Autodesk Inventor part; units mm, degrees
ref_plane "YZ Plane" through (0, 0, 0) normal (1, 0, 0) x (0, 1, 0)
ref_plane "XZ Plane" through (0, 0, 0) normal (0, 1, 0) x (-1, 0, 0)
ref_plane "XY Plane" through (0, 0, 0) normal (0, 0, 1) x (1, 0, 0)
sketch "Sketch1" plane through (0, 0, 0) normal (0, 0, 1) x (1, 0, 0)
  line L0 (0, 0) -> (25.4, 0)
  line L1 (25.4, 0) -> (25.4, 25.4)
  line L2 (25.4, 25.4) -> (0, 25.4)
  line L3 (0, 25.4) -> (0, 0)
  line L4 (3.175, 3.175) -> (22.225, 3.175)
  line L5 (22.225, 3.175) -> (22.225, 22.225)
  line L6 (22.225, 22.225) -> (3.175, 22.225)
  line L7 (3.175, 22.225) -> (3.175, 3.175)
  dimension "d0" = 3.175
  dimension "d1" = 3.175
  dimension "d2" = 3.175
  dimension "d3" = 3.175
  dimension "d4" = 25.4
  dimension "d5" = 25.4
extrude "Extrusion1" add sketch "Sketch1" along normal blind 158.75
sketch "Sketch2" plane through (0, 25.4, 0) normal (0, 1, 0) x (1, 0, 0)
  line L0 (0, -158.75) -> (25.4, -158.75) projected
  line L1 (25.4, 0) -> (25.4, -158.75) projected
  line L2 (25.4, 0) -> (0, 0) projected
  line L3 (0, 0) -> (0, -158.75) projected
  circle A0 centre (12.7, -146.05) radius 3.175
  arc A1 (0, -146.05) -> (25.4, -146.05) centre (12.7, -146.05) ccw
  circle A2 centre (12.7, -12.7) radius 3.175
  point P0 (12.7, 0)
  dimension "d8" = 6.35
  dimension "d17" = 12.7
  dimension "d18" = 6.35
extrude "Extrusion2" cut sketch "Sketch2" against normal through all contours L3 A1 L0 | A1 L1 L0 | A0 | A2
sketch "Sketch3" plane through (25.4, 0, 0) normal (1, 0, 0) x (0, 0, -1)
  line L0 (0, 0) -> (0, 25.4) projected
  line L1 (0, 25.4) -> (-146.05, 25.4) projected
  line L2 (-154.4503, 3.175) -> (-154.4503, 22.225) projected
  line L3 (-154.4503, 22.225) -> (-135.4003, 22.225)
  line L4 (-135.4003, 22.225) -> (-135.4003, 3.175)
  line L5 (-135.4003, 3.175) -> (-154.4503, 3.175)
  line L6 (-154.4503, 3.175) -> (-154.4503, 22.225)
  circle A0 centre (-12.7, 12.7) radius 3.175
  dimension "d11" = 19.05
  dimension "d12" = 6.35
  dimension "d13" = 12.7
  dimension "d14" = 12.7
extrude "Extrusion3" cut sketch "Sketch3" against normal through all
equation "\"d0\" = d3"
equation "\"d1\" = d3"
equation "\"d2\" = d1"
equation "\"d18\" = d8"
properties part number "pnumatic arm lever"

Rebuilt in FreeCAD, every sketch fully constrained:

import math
import FreeCAD as App
import Part
import Sketcher
from FreeCAD import Vector
Q = App.Units.Quantity

doc = App.newDocument("Part")
params = doc.addObject("Spreadsheet::Sheet", "Params")
for row, (alias, value) in enumerate([
    ("sketch1_width", "1 in"),
    ("pad1_length", "6.25 in"),
    ("sketch2_radius", "0.5 in"),
    ("sketch2_diameter", "0.25 in"),
    ("sketch3_diameter", "0.25 in"),
    ("sketch3_width", "0.75 in"),
], start=1):
    params.set(f"A{row}", alias)
    params.set(f"B{row}", "=" + value)
    params.setAlias(f"B{row}", alias)

body = doc.addObject("PartDesign::Body", "Body")

# Sketch on XY plane
sketch1 = body.newObject("Sketcher::SketchObject", "Sketch")
sketch1.AttachmentSupport = (doc.getObject("XY_Plane"), [""])
sketch1.MapMode = "FlatFace"
sketch1.addGeometry(Part.LineSegment(Vector(0, 25.4, 0), Vector(0, 0, 0)), False)
sketch1.addGeometry(Part.LineSegment(Vector(0, 0, 0), Vector(25.4, 0, 0)), False)
sketch1.addGeometry(Part.LineSegment(Vector(25.4, 0, 0), Vector(25.4, 25.4, 0)), False)
sketch1.addGeometry(Part.LineSegment(Vector(25.4, 25.4, 0), Vector(0, 25.4, 0)), False)
sketch1.addGeometry(Part.LineSegment(Vector(22.225, 3.175, 0), Vector(3.175, 3.175, 0)), False)
sketch1.addGeometry(Part.LineSegment(Vector(3.175, 3.175, 0), Vector(3.175, 22.225, 0)), False)
sketch1.addGeometry(Part.LineSegment(Vector(3.175, 22.225, 0), Vector(22.225, 22.225, 0)), False)
sketch1.addGeometry(Part.LineSegment(Vector(22.225, 22.225, 0), Vector(22.225, 3.175, 0)), False)
sketch1.addConstraint(Sketcher.Constraint("Coincident", 0, 2, 1, 1))
sketch1.addConstraint(Sketcher.Constraint("Coincident", 1, 2, 2, 1))
sketch1.addConstraint(Sketcher.Constraint("Coincident", 2, 2, 3, 1))
sketch1.addConstraint(Sketcher.Constraint("Coincident", 3, 2, 0, 1))
sketch1.addConstraint(Sketcher.Constraint("Coincident", 4, 2, 5, 1))
sketch1.addConstraint(Sketcher.Constraint("Coincident", 5, 2, 6, 1))
sketch1.addConstraint(Sketcher.Constraint("Coincident", 6, 2, 7, 1))
sketch1.addConstraint(Sketcher.Constraint("Coincident", 7, 2, 4, 1))
sketch1.addConstraint(Sketcher.Constraint("Vertical", 0))
sketch1.addConstraint(Sketcher.Constraint("Horizontal", 1))
sketch1.addConstraint(Sketcher.Constraint("Vertical", 2))
sketch1.addConstraint(Sketcher.Constraint("Horizontal", 3))
sketch1.addConstraint(Sketcher.Constraint("Horizontal", 4))
sketch1.addConstraint(Sketcher.Constraint("Vertical", 5))
sketch1.addConstraint(Sketcher.Constraint("Horizontal", 6))
sketch1.addConstraint(Sketcher.Constraint("Vertical", 7))
sketch1.addConstraint(Sketcher.Constraint("Coincident", 0, 2, -1, 1))
sketch1.addConstraint(Sketcher.Constraint("Equal", 3, 0))
sketch1.addConstraint(Sketcher.Constraint("Equal", 6, 5))
sketch1.addConstraint(Sketcher.Constraint("DistanceX", 1, 1, 1, 2, Q("1 in")))
sketch1.addConstraint(Sketcher.Constraint("DistanceX", -1, 1, 4, 2, Q("0.125 in")))
sketch1.addConstraint(Sketcher.Constraint("DistanceY", -1, 1, 4, 2, Q("0.125 in")))
sketch1.addConstraint(Sketcher.Constraint("DistanceY", 5, 2, 3, 2, Q("0.125 in")))
sketch1.setExpression("Constraints[19]", "Params.sketch1_width")
pad1 = body.newObject("PartDesign::Pad", "Pad")
pad1.Profile = sketch1
pad1.setExpression("Length", "Params.pad1_length")

# Sketch on XZ plane
sketch2 = body.newObject("Sketcher::SketchObject", "Sketch001")
sketch2.AttachmentSupport = (doc.getObject("XZ_Plane"), [""])
sketch2.MapMode = "FlatFace"
sketch2.AttachmentOffset = App.Placement(Vector(0, 0, -1 * 25.4), App.Rotation())
sketch2.addGeometry(Part.LineSegment(Vector(0, 146.05, 0), Vector(0, 158.75, 0)), False)
sketch2.addGeometry(Part.LineSegment(Vector(0, 158.75, 0), Vector(12.7, 158.75, 0)), False)
sketch2.addGeometry(Part.ArcOfCircle(Part.Circle(Vector(12.7, 146.05, 0), Vector(0, 0, 1), 12.7), math.radians(90), math.radians(180)), False)
sketch2.addGeometry(Part.ArcOfCircle(Part.Circle(Vector(12.7, 146.05, 0), Vector(0, 0, 1), 12.7), math.radians(0), math.radians(90)), False)
sketch2.addGeometry(Part.LineSegment(Vector(12.7, 158.75, 0), Vector(25.4, 158.75, 0)), False)
sketch2.addGeometry(Part.LineSegment(Vector(25.4, 158.75, 0), Vector(25.4, 146.05, 0)), False)
sketch2.addGeometry(Part.Circle(Vector(12.7, 146.05, 0), Vector(0, 0, 1), 3.175), False)
sketch2.addGeometry(Part.Circle(Vector(12.7, 12.7, 0), Vector(0, 0, 1), 3.175), False)
sketch2.addConstraint(Sketcher.Constraint("Coincident", 0, 2, 1, 1))
sketch2.addConstraint(Sketcher.Constraint("Tangent", 1, 2, 2, 1))
sketch2.addConstraint(Sketcher.Constraint("Tangent", 2, 2, 0, 1))
sketch2.addConstraint(Sketcher.Constraint("Tangent", 3, 2, 4, 1))
sketch2.addConstraint(Sketcher.Constraint("Coincident", 4, 2, 5, 1))
sketch2.addConstraint(Sketcher.Constraint("Tangent", 5, 2, 3, 1))
sketch2.addConstraint(Sketcher.Constraint("Vertical", 0))
sketch2.addConstraint(Sketcher.Constraint("Horizontal", 1))
sketch2.addConstraint(Sketcher.Constraint("Horizontal", 4))
sketch2.addConstraint(Sketcher.Constraint("Vertical", 5))
sketch2.addConstraint(Sketcher.Constraint("Coincident", 3, 3, 2, 3))
sketch2.addConstraint(Sketcher.Constraint("Coincident", 6, 3, 2, 3))
sketch2.addConstraint(Sketcher.Constraint("Equal", 2, 3))
sketch2.addConstraint(Sketcher.Constraint("Equal", 6, 7))
sketch2.addConstraint(Sketcher.Constraint("PointOnObject", 0, 2, -2))
sketch2.addConstraint(Sketcher.Constraint("Vertical", 6, 3, 7, 3))
sketch2.addConstraint(Sketcher.Constraint("Radius", 2, Q("0.5 in")))
sketch2.addConstraint(Sketcher.Constraint("Diameter", 6, Q("0.25 in")))
sketch2.addConstraint(Sketcher.Constraint("DistanceY", -1, 1, 7, 3, Q("0.5 in")))
sketch2.addConstraint(Sketcher.Constraint("DistanceY", -1, 1, 2, 3, Q("5.75 in")))
sketch2.setExpression("Constraints[16]", "Params.sketch2_radius")
sketch2.setExpression("Constraints[17]", "Params.sketch2_diameter")
pocket1 = body.newObject("PartDesign::Pocket", "Pocket")
pocket1.Profile = sketch2
pocket1.Type = "ThroughAll"
pocket1.Reversed = True

# Sketch on YZ plane
sketch3 = body.newObject("Sketcher::SketchObject", "Sketch002")
sketch3.AttachmentSupport = (doc.getObject("YZ_Plane"), [""])
sketch3.MapMode = "FlatFace"
sketch3.AttachmentOffset = App.Placement(Vector(0, 0, 1 * 25.4), App.Rotation())
sketch3.addGeometry(Part.LineSegment(Vector(22.225, 154.4503, 0), Vector(3.175, 154.4503, 0)), False)
sketch3.addGeometry(Part.LineSegment(Vector(3.175, 154.4503, 0), Vector(3.175, 135.4003, 0)), False)
sketch3.addGeometry(Part.LineSegment(Vector(3.175, 135.4003, 0), Vector(22.225, 135.4003, 0)), False)
sketch3.addGeometry(Part.LineSegment(Vector(22.225, 135.4003, 0), Vector(22.225, 154.4503, 0)), False)
sketch3.addGeometry(Part.Circle(Vector(12.7, 12.7, 0), Vector(0, 0, 1), 3.175), False)
sketch3.addConstraint(Sketcher.Constraint("Coincident", 0, 2, 1, 1))
sketch3.addConstraint(Sketcher.Constraint("Coincident", 1, 2, 2, 1))
sketch3.addConstraint(Sketcher.Constraint("Coincident", 2, 2, 3, 1))
sketch3.addConstraint(Sketcher.Constraint("Coincident", 3, 2, 0, 1))
sketch3.addConstraint(Sketcher.Constraint("Horizontal", 0))
sketch3.addConstraint(Sketcher.Constraint("Vertical", 1))
sketch3.addConstraint(Sketcher.Constraint("Horizontal", 2))
sketch3.addConstraint(Sketcher.Constraint("Vertical", 3))
sketch3.addConstraint(Sketcher.Constraint("Equal", 2, 1))
sketch3.addConstraint(Sketcher.Constraint("Diameter", 4, Q("0.25 in")))
sketch3.addConstraint(Sketcher.Constraint("DistanceX", 0, 2, 0, 1, Q("0.75 in")))
sketch3.addConstraint(Sketcher.Constraint("DistanceX", -1, 1, 4, 3, Q("0.5 in")))
sketch3.addConstraint(Sketcher.Constraint("DistanceY", -1, 1, 4, 3, Q("0.5 in")))
sketch3.addConstraint(Sketcher.Constraint("DistanceX", -1, 1, 0, 2, Q("0.125 in")))
sketch3.addConstraint(Sketcher.Constraint("DistanceY", -1, 1, 0, 2, Q("154.4503 mm")))
sketch3.setExpression("Constraints[9]", "Params.sketch3_diameter")
sketch3.setExpression("Constraints[10]", "Params.sketch3_width")
pocket2 = body.newObject("PartDesign::Pocket", "Pocket001")
pocket2.Profile = sketch3
pocket2.Type = "ThroughAll"

doc.recompute()
